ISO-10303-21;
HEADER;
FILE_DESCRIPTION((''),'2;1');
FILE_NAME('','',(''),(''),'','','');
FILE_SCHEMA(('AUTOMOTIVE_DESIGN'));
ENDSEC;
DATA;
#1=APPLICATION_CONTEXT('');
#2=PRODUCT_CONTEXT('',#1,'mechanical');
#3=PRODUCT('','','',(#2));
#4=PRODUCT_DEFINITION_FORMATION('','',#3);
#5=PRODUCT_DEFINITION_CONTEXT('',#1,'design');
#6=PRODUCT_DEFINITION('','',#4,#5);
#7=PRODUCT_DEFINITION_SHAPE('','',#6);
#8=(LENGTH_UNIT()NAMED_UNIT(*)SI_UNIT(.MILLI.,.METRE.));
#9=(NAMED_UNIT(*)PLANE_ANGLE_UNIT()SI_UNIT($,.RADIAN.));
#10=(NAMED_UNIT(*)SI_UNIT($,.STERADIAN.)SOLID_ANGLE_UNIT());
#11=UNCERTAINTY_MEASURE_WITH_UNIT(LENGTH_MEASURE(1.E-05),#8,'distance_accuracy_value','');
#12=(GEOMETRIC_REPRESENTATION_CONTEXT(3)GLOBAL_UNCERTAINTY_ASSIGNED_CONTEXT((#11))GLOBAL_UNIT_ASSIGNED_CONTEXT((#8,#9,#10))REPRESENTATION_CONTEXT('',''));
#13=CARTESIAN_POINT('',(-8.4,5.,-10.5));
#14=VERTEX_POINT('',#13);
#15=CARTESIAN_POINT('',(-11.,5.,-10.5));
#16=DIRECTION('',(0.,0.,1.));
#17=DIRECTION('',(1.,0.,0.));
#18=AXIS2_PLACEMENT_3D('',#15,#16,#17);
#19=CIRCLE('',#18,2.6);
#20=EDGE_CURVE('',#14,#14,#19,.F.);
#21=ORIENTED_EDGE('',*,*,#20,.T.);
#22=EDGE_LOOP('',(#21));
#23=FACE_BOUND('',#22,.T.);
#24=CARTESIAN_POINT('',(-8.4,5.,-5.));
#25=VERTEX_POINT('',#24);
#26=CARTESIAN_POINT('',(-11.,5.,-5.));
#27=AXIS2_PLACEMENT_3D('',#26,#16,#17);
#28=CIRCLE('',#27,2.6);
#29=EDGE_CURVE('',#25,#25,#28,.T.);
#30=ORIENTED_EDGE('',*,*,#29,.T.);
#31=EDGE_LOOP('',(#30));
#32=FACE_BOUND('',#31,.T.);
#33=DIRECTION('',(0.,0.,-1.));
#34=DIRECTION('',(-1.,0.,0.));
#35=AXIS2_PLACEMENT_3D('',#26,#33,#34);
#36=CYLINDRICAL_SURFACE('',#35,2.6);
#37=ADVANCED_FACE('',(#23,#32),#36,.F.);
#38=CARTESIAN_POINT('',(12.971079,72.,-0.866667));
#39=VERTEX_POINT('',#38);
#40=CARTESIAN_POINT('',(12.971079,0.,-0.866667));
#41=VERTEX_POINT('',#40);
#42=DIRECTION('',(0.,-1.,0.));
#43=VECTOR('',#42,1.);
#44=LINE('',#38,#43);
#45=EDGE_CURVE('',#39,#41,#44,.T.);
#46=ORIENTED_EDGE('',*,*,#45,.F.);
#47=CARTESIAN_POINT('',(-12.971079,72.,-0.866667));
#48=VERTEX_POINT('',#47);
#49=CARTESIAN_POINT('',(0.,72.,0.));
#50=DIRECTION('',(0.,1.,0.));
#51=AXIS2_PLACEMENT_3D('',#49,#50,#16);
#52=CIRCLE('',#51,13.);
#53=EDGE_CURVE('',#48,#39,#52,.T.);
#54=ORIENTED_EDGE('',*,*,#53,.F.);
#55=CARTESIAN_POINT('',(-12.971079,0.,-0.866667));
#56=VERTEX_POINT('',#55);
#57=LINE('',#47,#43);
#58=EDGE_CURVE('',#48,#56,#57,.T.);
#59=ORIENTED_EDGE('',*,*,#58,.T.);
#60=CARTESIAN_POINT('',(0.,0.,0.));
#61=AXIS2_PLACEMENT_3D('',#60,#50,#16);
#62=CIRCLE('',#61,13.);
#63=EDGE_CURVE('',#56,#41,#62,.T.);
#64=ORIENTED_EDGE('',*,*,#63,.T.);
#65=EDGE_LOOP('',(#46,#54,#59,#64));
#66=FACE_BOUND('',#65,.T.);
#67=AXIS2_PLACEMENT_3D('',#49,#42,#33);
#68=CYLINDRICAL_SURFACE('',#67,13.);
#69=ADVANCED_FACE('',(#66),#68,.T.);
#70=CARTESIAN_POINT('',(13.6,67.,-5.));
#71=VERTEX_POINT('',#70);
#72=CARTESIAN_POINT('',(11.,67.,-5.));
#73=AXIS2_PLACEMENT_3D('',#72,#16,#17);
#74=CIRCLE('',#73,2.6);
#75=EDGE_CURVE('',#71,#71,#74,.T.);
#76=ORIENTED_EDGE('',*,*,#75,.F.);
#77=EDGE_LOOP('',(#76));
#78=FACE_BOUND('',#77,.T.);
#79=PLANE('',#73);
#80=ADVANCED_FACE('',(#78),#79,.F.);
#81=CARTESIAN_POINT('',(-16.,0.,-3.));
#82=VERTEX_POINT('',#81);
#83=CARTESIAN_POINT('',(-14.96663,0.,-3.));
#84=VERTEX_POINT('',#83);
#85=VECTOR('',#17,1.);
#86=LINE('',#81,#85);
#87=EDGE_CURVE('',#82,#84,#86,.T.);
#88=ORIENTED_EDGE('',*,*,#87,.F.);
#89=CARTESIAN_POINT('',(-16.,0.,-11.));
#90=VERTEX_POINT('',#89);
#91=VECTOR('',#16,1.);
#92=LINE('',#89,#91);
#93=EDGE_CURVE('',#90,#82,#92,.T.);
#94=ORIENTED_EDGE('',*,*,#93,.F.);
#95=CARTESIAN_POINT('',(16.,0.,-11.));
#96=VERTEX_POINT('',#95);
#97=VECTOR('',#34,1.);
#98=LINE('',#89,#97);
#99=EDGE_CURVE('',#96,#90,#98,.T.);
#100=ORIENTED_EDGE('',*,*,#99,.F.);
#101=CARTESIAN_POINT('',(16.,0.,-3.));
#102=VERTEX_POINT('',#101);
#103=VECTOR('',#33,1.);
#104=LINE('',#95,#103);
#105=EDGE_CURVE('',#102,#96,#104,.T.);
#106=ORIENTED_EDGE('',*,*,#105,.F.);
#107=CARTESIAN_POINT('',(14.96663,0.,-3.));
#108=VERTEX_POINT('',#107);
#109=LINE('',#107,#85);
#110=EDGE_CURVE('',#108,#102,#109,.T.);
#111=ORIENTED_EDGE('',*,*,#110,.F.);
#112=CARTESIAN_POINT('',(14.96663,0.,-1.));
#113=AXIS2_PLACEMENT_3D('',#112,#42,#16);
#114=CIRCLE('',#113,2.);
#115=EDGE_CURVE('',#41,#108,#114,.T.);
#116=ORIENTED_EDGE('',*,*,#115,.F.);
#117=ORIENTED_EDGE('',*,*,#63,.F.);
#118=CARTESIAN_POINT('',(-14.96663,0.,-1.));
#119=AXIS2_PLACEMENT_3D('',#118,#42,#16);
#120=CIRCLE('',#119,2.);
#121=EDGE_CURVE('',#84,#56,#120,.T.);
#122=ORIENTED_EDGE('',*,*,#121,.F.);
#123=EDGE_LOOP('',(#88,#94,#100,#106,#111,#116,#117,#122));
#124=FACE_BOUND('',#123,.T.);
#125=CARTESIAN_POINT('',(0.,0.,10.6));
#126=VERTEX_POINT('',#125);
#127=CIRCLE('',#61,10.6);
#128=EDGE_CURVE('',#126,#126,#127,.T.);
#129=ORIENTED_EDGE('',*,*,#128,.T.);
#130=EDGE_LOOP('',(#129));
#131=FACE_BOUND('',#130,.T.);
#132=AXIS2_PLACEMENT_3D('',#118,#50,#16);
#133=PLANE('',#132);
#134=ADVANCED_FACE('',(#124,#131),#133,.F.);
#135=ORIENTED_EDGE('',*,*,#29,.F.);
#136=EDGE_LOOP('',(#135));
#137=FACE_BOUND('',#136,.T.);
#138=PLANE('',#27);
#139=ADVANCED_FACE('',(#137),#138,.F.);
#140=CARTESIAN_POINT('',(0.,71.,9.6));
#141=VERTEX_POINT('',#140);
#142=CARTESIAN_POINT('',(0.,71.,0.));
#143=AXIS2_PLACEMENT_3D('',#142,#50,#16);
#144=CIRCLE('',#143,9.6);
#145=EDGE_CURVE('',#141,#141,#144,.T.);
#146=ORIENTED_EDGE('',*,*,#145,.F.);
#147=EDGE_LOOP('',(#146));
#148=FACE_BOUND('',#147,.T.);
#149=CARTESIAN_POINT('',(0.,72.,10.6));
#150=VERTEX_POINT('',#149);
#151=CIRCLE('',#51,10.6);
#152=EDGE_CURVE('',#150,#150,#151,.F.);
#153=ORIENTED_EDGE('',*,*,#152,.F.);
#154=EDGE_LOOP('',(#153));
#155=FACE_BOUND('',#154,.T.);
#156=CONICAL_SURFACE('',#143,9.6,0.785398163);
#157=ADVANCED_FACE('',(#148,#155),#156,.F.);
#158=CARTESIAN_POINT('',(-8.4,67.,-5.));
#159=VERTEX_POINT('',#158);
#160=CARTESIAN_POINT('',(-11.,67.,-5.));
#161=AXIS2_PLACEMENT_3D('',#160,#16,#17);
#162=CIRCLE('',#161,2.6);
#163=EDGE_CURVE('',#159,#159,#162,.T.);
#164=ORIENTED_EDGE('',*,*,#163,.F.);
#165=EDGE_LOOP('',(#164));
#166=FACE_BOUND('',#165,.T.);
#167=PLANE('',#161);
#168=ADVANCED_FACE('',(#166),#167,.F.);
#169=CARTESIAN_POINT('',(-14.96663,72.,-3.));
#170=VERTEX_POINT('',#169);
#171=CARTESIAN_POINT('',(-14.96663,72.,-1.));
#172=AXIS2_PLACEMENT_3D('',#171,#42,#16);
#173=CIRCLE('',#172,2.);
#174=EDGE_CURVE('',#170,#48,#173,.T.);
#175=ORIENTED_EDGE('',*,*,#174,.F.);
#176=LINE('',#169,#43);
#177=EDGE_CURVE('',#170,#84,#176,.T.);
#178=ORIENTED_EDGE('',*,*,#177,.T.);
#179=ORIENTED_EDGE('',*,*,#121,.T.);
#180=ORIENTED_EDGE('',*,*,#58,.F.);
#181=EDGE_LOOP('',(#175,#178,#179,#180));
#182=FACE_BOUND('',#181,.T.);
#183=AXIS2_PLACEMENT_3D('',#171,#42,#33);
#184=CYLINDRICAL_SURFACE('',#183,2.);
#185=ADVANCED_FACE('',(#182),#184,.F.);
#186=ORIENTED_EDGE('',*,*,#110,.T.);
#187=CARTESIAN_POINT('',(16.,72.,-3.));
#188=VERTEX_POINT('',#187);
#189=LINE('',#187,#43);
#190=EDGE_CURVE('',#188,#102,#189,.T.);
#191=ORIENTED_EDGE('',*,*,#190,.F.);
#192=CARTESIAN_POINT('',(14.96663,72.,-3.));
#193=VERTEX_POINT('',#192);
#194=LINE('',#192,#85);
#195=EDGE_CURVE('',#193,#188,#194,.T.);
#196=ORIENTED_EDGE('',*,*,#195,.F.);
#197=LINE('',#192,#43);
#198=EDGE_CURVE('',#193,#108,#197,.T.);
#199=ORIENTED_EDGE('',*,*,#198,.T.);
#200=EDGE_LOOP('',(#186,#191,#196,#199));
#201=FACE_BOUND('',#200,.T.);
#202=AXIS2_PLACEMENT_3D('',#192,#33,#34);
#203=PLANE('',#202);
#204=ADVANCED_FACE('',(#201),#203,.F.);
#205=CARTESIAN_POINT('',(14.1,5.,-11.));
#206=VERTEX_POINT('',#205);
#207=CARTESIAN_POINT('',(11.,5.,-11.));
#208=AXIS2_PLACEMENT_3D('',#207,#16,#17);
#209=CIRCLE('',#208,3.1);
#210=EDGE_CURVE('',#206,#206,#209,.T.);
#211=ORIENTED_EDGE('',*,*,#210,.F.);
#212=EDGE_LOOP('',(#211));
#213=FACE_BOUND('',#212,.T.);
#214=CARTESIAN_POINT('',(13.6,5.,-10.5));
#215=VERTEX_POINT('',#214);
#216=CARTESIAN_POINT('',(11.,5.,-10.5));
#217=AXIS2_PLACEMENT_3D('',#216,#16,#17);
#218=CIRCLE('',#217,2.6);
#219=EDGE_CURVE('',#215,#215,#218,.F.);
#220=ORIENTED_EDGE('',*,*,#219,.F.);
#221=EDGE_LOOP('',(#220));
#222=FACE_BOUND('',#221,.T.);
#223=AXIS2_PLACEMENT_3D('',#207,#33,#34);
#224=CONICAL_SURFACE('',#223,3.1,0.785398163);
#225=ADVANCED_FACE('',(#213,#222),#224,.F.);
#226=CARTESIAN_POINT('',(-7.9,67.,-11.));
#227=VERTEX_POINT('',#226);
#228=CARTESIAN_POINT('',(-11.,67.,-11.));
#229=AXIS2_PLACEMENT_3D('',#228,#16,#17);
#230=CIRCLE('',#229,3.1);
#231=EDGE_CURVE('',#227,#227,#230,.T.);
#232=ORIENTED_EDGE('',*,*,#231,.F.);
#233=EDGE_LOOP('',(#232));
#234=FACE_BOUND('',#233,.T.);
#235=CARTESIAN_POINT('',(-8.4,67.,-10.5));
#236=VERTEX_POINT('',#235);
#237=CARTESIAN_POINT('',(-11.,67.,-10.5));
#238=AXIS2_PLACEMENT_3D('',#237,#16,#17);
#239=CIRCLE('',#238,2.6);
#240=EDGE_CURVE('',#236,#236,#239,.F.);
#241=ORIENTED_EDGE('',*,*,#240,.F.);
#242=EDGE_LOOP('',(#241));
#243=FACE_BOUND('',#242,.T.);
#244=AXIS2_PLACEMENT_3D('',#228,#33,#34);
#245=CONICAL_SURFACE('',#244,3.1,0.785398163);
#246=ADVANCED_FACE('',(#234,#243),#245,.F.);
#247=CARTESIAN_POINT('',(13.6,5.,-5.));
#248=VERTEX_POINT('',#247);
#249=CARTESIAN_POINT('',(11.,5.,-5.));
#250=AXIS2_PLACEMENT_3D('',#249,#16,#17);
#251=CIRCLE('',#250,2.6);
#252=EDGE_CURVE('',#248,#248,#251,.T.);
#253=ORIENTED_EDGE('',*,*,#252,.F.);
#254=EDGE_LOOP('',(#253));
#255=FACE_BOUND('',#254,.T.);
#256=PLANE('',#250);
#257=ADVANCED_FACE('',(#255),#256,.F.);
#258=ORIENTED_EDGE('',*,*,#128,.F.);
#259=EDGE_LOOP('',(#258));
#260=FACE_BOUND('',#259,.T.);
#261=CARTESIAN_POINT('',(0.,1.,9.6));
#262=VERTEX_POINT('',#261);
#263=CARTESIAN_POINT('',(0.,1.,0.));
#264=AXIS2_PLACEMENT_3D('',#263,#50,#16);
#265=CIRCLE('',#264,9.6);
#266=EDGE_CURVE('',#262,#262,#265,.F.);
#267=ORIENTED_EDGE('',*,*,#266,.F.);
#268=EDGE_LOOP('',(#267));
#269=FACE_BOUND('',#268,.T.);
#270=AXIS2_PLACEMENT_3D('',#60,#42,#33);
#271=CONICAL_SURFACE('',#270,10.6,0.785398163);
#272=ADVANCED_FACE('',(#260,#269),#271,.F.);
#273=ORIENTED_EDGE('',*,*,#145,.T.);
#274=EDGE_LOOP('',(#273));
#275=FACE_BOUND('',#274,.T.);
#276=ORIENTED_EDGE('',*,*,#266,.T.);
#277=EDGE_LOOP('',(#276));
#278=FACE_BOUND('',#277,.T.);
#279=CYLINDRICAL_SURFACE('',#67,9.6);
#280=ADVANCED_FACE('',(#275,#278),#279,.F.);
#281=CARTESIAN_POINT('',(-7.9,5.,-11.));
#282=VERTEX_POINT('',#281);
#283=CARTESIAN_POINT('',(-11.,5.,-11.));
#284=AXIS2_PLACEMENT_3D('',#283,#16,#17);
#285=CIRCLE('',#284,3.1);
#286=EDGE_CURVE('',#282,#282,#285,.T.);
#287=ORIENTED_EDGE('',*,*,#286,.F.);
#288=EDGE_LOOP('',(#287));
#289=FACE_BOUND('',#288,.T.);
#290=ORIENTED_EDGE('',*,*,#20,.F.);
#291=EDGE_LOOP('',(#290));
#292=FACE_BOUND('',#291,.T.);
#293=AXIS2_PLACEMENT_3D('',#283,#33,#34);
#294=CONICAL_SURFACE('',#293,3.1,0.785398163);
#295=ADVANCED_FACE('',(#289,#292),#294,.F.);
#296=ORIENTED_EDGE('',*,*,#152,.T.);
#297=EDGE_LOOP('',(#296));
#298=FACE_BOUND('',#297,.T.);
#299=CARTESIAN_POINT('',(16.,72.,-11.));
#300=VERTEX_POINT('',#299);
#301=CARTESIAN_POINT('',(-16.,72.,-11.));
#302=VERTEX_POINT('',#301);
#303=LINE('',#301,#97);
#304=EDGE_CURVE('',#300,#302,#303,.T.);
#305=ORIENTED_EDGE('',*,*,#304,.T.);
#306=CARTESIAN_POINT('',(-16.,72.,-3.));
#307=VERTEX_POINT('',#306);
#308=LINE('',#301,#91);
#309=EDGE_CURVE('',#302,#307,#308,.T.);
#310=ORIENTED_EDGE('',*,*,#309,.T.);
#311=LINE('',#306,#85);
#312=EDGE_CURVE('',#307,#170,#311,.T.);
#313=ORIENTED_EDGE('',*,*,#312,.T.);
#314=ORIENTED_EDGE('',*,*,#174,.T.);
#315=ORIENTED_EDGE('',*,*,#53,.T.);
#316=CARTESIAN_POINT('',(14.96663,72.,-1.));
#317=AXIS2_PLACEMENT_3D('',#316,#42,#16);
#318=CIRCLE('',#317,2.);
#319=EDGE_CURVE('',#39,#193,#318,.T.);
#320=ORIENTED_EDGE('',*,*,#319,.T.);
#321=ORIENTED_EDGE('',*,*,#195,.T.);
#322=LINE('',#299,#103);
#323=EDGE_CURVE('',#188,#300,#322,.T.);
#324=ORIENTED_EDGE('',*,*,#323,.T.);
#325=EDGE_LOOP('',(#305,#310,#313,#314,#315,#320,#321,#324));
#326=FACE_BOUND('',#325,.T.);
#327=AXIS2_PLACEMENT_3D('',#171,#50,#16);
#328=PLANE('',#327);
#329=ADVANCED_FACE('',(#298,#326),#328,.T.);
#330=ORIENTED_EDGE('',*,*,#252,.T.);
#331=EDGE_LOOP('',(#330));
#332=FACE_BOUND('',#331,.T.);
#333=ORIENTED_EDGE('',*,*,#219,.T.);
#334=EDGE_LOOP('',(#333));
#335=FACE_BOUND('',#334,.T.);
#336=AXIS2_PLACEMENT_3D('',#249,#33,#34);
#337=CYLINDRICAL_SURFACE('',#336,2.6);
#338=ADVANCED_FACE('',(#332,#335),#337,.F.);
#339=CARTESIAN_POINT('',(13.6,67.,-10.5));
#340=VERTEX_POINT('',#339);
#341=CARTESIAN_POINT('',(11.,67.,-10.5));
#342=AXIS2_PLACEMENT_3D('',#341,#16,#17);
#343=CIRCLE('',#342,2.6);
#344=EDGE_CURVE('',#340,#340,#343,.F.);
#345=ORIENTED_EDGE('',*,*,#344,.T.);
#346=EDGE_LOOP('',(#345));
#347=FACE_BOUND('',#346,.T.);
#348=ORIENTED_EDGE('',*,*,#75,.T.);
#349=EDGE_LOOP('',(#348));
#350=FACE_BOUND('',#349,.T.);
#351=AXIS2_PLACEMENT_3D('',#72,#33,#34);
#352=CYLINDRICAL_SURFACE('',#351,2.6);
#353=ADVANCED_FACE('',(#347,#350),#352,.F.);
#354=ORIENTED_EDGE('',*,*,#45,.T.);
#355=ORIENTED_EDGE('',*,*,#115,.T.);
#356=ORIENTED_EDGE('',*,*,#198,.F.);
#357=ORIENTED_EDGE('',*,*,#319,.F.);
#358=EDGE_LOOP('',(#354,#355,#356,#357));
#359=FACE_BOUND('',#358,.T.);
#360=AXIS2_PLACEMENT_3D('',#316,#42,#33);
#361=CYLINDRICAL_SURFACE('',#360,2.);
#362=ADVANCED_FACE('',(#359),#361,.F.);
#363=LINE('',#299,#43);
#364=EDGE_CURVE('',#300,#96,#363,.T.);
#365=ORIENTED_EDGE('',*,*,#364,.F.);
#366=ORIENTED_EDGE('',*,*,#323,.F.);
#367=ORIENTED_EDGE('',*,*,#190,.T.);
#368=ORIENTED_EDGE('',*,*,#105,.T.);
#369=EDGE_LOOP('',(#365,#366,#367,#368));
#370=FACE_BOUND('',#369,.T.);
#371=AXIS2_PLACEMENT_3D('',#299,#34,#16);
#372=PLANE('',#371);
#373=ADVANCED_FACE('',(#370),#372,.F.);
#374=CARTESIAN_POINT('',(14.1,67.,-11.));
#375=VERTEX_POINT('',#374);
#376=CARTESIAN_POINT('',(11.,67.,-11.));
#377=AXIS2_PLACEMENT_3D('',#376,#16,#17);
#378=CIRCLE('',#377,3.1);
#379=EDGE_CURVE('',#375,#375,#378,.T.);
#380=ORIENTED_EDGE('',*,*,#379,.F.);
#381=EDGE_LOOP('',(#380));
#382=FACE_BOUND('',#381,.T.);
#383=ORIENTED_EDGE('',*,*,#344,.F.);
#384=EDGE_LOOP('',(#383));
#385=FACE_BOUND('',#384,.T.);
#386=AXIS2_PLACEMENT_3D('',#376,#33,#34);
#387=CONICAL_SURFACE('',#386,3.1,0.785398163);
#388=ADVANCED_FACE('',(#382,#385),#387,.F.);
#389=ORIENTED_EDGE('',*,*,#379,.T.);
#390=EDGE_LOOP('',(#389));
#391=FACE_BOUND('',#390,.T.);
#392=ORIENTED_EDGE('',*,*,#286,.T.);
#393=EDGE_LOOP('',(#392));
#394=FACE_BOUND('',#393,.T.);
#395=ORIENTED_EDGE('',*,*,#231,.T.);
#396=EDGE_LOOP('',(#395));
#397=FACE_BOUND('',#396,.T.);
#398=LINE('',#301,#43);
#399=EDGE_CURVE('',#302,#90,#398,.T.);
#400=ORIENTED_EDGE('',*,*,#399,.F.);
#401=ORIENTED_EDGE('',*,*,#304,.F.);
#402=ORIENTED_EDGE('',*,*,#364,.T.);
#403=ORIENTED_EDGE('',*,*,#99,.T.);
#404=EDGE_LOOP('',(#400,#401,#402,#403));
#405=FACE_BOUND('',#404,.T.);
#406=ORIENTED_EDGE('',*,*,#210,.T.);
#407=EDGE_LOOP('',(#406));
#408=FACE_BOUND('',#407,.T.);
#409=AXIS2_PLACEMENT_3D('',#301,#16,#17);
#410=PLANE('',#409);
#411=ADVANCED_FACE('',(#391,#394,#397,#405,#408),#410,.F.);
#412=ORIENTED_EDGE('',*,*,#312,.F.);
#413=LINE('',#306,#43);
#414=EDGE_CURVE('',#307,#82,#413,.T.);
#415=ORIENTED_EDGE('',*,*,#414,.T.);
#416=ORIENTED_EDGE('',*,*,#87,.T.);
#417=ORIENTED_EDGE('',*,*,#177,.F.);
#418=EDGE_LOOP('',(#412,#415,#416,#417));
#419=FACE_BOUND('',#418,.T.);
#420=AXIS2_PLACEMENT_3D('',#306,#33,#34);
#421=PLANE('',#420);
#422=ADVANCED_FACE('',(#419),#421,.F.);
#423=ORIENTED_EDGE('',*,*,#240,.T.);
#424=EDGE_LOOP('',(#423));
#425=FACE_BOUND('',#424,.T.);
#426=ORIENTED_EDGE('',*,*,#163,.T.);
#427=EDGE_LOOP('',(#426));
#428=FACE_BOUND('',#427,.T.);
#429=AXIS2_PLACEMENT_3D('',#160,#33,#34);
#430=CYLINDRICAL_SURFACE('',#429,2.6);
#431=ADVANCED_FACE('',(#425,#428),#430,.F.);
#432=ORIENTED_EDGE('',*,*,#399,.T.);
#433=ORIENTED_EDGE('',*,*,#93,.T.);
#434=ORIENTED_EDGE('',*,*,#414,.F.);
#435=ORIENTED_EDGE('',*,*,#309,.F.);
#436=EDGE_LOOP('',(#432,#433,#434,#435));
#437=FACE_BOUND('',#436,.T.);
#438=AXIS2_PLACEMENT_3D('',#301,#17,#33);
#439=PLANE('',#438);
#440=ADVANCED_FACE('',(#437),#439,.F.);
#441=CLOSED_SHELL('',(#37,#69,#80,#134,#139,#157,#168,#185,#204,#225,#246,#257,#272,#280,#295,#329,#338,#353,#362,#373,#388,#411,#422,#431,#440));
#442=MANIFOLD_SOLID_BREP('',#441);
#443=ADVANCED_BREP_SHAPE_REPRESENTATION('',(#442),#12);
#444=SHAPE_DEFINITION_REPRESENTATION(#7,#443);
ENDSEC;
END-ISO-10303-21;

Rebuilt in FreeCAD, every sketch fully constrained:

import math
import FreeCAD as App
import Part
import Sketcher
Q = App.Units.Quantity


def edges_at(feature, points):
    """Names of the edges that pass closest to the given points."""
    edges = feature.Shape.Edges
    near = lambda p: min(range(len(edges)), key=lambda i: edges[i].distToShape(Part.Vertex(*p))[0])
    return sorted({f"Edge{near(p) + 1}" for p in points})

doc = App.newDocument("Part")
body = doc.addObject("PartDesign::Body", "Body")

sketch1 = doc.addObject("Sketcher::SketchObject", "Sketch")
body.addObject(sketch1)
sketch1.AttachmentSupport = (doc.XZ_Plane, [""])
sketch1.MapMode = "FlatFace"
sketch1.addGeometry([
    Part.LineSegment(App.Vector(14.96663, -3, 0), App.Vector(16, -3, 0)),
    Part.LineSegment(App.Vector(16, -3, 0), App.Vector(16, -11, 0)),
    Part.LineSegment(App.Vector(16, -11, 0), App.Vector(-16, -11, 0)),
    Part.LineSegment(App.Vector(-16, -11, 0), App.Vector(-16, -3, 0)),
    Part.LineSegment(App.Vector(-16, -3, 0), App.Vector(-14.96663, -3, 0)),
    Part.ArcOfCircle(Part.Circle(App.Vector(-14.96663, -1, 0), App.Vector(0, 0, 1), 2), math.radians(-90), math.radians(3.822554)),
    Part.ArcOfCircle(Part.Circle(App.Vector(0, 0, 0), App.Vector(0, 0, 1), 13), math.radians(-3.822554), math.radians(183.822554)),
    Part.ArcOfCircle(Part.Circle(App.Vector(14.96663, -1, 0), App.Vector(0, 0, 1), 2), math.radians(176.177446), math.radians(270)),
    Part.Circle(App.Vector(0, 0, 0), App.Vector(0, 0, 1), 9.6),
], False)
sketch1.addConstraint([
    Sketcher.Constraint("Coincident", 0, 2, 1, 1),
    Sketcher.Constraint("Coincident", 1, 2, 2, 1),
    Sketcher.Constraint("Coincident", 2, 2, 3, 1),
    Sketcher.Constraint("Coincident", 3, 2, 4, 1),
    Sketcher.Constraint("Tangent", 4, 2, 5, 1),
    Sketcher.Constraint("Tangent", 5, 2, 6, 2),
    Sketcher.Constraint("Tangent", 6, 1, 7, 1),
    Sketcher.Constraint("Tangent", 7, 2, 0, 1),
    Sketcher.Constraint("Horizontal", 0),
    Sketcher.Constraint("Vertical", 1),
    Sketcher.Constraint("Horizontal", 2),
    Sketcher.Constraint("Vertical", 3),
    Sketcher.Constraint("Horizontal", 4),
    Sketcher.Constraint("Coincident", 6, 3, -1, 1),
    Sketcher.Constraint("Coincident", 8, 3, -1, 1),
    Sketcher.Constraint("Equal", 5, 7),
    Sketcher.Constraint("Symmetric", 0, 2, 3, 2, -2),
    Sketcher.Constraint("Radius", 5, Q("2 mm")),
    Sketcher.Constraint("Radius", 6, Q("13 mm")),
    Sketcher.Constraint("Diameter", 8, Q("19.2 mm")),
    Sketcher.Constraint("DistanceX", 2, 2, 2, 1, Q("32 mm")),
    Sketcher.Constraint("DistanceY", 1, 2, 1, 1, Q("8 mm")),
    Sketcher.Constraint("DistanceY", 5, 3, -1, 1, Q("1 mm")),
])
pad1 = doc.addObject("PartDesign::Pad", "Pad")
body.addObject(pad1)
pad1.Profile = sketch1
pad1.Length = 72
pad1.Reversed = True

sketch2 = doc.addObject("Sketcher::SketchObject", "Sketch001")
body.addObject(sketch2)
sketch2.AttachmentSupport = (doc.XY_Plane, [""])
sketch2.MapMode = "FlatFace"
sketch2.AttachmentOffset = App.Placement(App.Vector(0, 0, -11), App.Rotation())
sketch2.addGeometry([
    Part.Circle(App.Vector(-11, 67, 0), App.Vector(0, 0, 1), 2.6),
    Part.Circle(App.Vector(-11, 5, 0), App.Vector(0, 0, 1), 2.6),
    Part.Circle(App.Vector(11, 67, 0), App.Vector(0, 0, 1), 2.6),
    Part.Circle(App.Vector(11, 5, 0), App.Vector(0, 0, 1), 2.6),
], False)
sketch2.addConstraint([
    Sketcher.Constraint("Equal", 0, 1),
    Sketcher.Constraint("Equal", 1, 2),
    Sketcher.Constraint("Equal", 2, 3),
    Sketcher.Constraint("Symmetric", 0, 3, 2, 3, -2),
    Sketcher.Constraint("Symmetric", 1, 3, 3, 3, -2),
    Sketcher.Constraint("Vertical", 0, 3, 1, 3),
    Sketcher.Constraint("Diameter", 0, Q("5.2 mm")),
    Sketcher.Constraint("DistanceX", 0, 3, -1, 1, Q("11 mm")),
    Sketcher.Constraint("DistanceY", -1, 1, 0, 3, Q("67 mm")),
    Sketcher.Constraint("DistanceY", -1, 1, 1, 3, Q("5 mm")),
])
pocket1 = doc.addObject("PartDesign::Pocket", "Pocket")
body.addObject(pocket1)
pocket1.Profile = sketch2
pocket1.Length = 6
pocket1.Reversed = True
doc.recompute()

chamfer = doc.addObject("PartDesign::Chamfer", "Chamfer")
body.addObject(chamfer)
chamfer.Base = (pocket1, edges_at(pocket1, [
    (-13.6, 67, -11),
    (-13.6, 5, -11),
    (8.4, 67, -11),
    (8.4, 5, -11),
]))
chamfer.Size = 0.5
doc.recompute()

chamfer2 = doc.addObject("PartDesign::Chamfer", "Chamfer001")
body.addObject(chamfer2)
chamfer2.Base = (chamfer, edges_at(chamfer, [(0, 0, -9.6), (0, 72, -9.6)]))
chamfer2.Size = 1

doc.recompute()
